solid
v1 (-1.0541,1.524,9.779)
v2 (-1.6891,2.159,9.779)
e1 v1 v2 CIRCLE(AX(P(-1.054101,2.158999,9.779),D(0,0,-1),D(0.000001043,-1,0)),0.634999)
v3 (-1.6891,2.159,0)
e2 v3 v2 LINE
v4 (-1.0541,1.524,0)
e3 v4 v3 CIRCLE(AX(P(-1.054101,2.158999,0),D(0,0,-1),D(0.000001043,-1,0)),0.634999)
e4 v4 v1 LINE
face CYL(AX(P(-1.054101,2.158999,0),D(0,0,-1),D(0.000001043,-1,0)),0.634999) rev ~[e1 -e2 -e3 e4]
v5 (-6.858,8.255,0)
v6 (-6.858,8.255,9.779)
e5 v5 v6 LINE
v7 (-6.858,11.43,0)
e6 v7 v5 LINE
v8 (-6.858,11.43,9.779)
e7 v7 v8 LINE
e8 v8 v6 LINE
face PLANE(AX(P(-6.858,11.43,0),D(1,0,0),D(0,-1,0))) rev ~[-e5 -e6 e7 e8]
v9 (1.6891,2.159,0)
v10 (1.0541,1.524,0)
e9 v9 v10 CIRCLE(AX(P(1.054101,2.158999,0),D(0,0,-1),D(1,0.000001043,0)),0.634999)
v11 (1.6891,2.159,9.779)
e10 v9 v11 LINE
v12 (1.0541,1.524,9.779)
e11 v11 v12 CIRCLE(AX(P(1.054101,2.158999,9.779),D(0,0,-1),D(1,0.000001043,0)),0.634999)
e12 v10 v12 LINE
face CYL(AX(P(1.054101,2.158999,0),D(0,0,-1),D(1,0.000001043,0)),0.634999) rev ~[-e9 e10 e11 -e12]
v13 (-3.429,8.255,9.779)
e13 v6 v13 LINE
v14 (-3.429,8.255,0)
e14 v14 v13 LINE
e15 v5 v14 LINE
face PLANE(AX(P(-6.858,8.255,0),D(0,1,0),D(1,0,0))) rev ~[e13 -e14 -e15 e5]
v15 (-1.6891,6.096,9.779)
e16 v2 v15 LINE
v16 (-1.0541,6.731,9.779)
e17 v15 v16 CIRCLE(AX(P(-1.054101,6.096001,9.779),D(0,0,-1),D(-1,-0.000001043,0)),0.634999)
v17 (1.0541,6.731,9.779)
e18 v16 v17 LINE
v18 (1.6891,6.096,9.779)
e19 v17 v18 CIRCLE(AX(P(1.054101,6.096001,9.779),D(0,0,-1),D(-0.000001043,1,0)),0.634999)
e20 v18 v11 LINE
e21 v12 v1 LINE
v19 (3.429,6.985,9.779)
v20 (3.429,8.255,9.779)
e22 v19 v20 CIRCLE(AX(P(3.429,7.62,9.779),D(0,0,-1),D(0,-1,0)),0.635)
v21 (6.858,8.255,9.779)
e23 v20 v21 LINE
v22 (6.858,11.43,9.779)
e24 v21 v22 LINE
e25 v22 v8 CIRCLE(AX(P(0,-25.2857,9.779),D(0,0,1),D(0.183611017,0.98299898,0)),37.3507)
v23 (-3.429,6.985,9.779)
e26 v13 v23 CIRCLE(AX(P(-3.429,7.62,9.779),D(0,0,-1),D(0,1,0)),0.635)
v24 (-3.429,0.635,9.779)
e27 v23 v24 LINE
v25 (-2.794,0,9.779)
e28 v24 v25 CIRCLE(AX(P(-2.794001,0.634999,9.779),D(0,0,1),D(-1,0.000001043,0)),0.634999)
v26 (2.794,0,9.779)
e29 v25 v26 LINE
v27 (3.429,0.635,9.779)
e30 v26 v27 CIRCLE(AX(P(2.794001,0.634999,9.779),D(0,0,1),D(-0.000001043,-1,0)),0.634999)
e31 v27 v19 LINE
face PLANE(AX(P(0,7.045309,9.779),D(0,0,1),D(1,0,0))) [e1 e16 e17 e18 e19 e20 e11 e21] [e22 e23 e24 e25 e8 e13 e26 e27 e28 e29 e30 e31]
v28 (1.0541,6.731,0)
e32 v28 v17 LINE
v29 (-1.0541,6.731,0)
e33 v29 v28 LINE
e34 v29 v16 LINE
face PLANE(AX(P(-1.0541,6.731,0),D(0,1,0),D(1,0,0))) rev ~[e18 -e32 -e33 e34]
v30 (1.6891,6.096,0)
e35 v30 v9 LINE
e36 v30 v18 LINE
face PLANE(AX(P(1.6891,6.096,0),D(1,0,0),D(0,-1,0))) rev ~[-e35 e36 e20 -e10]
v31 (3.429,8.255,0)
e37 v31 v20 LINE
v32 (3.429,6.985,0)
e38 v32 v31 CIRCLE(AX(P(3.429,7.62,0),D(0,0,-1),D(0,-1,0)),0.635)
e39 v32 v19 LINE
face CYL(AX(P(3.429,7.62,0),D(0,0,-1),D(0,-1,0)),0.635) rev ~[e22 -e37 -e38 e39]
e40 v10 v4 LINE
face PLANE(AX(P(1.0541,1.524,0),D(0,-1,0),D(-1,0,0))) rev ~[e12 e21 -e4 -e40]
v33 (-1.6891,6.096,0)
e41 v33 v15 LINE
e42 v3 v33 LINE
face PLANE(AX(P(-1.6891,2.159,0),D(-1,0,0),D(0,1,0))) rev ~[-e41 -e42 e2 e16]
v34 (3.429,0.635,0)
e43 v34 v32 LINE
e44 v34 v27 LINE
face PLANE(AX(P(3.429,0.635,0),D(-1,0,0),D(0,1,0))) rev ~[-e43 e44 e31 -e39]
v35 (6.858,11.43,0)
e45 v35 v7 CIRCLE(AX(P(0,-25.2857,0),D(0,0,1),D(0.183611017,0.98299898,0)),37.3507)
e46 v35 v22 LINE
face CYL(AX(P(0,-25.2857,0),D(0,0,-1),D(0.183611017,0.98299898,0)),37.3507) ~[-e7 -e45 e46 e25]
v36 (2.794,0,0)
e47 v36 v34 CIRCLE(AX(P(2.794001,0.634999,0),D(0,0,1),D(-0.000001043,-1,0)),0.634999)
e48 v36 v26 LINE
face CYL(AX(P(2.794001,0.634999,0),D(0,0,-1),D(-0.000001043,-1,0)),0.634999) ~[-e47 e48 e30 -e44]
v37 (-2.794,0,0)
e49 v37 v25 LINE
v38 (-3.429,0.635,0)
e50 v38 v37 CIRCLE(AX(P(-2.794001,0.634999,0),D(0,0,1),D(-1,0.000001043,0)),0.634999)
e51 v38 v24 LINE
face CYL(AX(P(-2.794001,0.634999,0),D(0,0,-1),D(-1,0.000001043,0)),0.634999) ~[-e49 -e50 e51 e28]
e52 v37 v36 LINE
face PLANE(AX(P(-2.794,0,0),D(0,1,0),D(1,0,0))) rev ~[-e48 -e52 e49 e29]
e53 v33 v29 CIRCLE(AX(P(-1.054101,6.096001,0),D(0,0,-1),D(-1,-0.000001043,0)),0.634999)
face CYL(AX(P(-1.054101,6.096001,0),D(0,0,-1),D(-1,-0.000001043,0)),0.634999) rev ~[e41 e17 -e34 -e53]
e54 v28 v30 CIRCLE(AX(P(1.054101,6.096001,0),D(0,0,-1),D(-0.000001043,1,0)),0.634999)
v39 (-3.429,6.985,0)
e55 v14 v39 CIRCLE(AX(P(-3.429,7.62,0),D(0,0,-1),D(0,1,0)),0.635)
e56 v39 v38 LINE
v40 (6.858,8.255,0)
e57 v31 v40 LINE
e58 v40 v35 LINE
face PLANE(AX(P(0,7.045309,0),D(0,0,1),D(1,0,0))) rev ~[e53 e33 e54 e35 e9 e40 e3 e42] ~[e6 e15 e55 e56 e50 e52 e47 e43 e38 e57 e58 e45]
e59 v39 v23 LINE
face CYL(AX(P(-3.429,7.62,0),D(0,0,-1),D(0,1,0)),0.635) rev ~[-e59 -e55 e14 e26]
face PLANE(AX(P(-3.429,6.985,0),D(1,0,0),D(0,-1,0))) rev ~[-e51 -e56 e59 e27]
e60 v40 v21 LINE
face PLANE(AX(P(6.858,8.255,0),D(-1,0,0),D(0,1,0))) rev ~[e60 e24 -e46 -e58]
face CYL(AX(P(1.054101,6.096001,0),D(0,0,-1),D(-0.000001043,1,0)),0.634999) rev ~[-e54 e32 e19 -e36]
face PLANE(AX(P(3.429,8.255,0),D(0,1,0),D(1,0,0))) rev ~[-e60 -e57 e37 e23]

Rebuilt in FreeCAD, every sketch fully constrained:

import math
import FreeCAD as App
import Part
import Sketcher

V = App.Vector
Q = App.Units.Quantity

doc = App.newDocument("Part")
params = doc.addObject("Spreadsheet::Sheet", "Params")
for row, (alias, value) in enumerate([
    ("sketch1_radius", "0.025 in"),
    ("sketch1_width", "0.22 in"),
    ("sketch1_height", "0.25 in"),
    ("sketch1_width2", "0.135 in"),
    ("sketch1_width3", "0.083 in"),
    ("pad1_length", "0.385 in"),
], start=1):
    params.set(f"A{row}", alias)
    params.set(f"B{row}", "=" + value)
    params.setAlias(f"B{row}", alias)

body = doc.addObject("PartDesign::Body", "Body")

# Sketch on XY plane
sketch1 = doc.addObject("Sketcher::SketchObject", "Sketch")
body.addObject(sketch1)
sketch1.AttachmentSupport = (doc.XY_Plane, [""])
sketch1.MapMode = "FlatFace"
sketch1.addGeometry([
    Part.ArcOfCircle(Part.Circle(V(-2.8, 0.6, 0), V(0, 0, 1), 0.6), math.radians(180), math.radians(270)),  # 0
    Part.LineSegment(V(-2.8, 0, 0), V(2.8, 0, 0)),  # 1
    Part.ArcOfCircle(Part.Circle(V(2.8, 0.6, 0), V(0, 0, 1), 0.6), math.radians(-90), math.radians(0)),  # 2
    Part.LineSegment(V(3.4, 0.6, 0), V(3.4, 7, 0)),  # 3
    Part.ArcOfCircle(Part.Circle(V(3.4, 7.6, 0), V(0, 0, 1), 0.6), math.radians(90), math.radians(270)),  # 4
    Part.LineSegment(V(3.4, 8.3, 0), V(6.9, 8.3, 0)),  # 5
    Part.LineSegment(V(6.9, 8.3, 0), V(6.9, 11.4, 0)),  # 6
    Part.ArcOfCircle(Part.Circle(V(0, -25.3, 0), V(0, 0, 1), 37.4), math.radians(79), math.radians(101)),  # 7
    Part.LineSegment(V(-6.9, 11.4, 0), V(-6.9, 8.3, 0)),  # 8
    Part.LineSegment(V(-6.9, 8.3, 0), V(-3.4, 8.3, 0)),  # 9
    Part.ArcOfCircle(Part.Circle(V(-3.4, 7.6, 0), V(0, 0, 1), 0.6), math.radians(-90), math.radians(90)),  # 10
    Part.LineSegment(V(-3.4, 7, 0), V(-3.4, 0.6, 0)),  # 11
    Part.LineSegment(V(-1.7, 2.2, 0), V(-1.7, 6.1, 0)),  # 12
    Part.ArcOfCircle(Part.Circle(V(-1.1, 6.1, 0), V(0, 0, 1), 0.6), math.radians(90), math.radians(180)),  # 13
    Part.LineSegment(V(-1.1, 6.7, 0), V(1.1, 6.7, 0)),  # 14
    Part.ArcOfCircle(Part.Circle(V(1.1, 6.1, 0), V(0, 0, 1), 0.6), math.radians(0), math.radians(90)),  # 15
    Part.LineSegment(V(1.7, 6.1, 0), V(1.7, 2.2, 0)),  # 16
    Part.ArcOfCircle(Part.Circle(V(1.1, 2.2, 0), V(0, 0, 1), 0.6), math.radians(-90), math.radians(0)),  # 17
    Part.LineSegment(V(1.1, 1.5, 0), V(-1.1, 1.5, 0)),  # 18
    Part.ArcOfCircle(Part.Circle(V(-1.1, 2.2, 0), V(0, 0, 1), 0.6), math.radians(180), math.radians(270)),  # 19
], False)
sketch1.addConstraint([
    Sketcher.Constraint("Tangent", 0, 2, 1, 1),
    Sketcher.Constraint("Tangent", 1, 2, 2, 1),
    Sketcher.Constraint("Tangent", 2, 2, 3, 1),
    Sketcher.Constraint("Coincident", 3, 2, 4, 2),
    Sketcher.Constraint("Tangent", 4, 1, 5, 1),
    Sketcher.Constraint("Coincident", 5, 2, 6, 1),
    Sketcher.Constraint("Coincident", 6, 2, 7, 1),
    Sketcher.Constraint("Coincident", 7, 2, 8, 1),
    Sketcher.Constraint("Coincident", 8, 2, 9, 1),
    Sketcher.Constraint("Tangent", 9, 2, 10, 2),
    Sketcher.Constraint("Coincident", 10, 1, 11, 1),
    Sketcher.Constraint("Tangent", 11, 2, 0, 1),
    Sketcher.Constraint("Tangent", 12, 2, 13, 2),
    Sketcher.Constraint("Tangent", 13, 1, 14, 1),
    Sketcher.Constraint("Tangent", 14, 2, 15, 2),
    Sketcher.Constraint("Tangent", 15, 1, 16, 1),
    Sketcher.Constraint("Tangent", 16, 2, 17, 2),
    Sketcher.Constraint("Tangent", 17, 1, 18, 1),
    Sketcher.Constraint("Tangent", 18, 2, 19, 2),
    Sketcher.Constraint("Tangent", 19, 1, 12, 1),
    Sketcher.Constraint("Horizontal", 1),
    Sketcher.Constraint("Vertical", 3),
    Sketcher.Constraint("Horizontal", 5),
    Sketcher.Constraint("Vertical", 6),
    Sketcher.Constraint("Vertical", 8),
    Sketcher.Constraint("Horizontal", 9),
    Sketcher.Constraint("Vertical", 11),
    Sketcher.Constraint("Vertical", 12),
    Sketcher.Constraint("Horizontal", 14),
    Sketcher.Constraint("Vertical", 16),
    Sketcher.Constraint("Horizontal", 18),
    Sketcher.Constraint("Equal", 0, 2),
    Sketcher.Constraint("Equal", 2, 4),
    Sketcher.Constraint("Equal", 4, 10),
    Sketcher.Constraint("Equal", 10, 13),
    Sketcher.Constraint("Equal", 13, 15),
    Sketcher.Constraint("Equal", 15, 17),
    Sketcher.Constraint("Equal", 17, 19),
    Sketcher.Constraint("Symmetric", 0, 2, 1, 2, -1, 1),
    Sketcher.Constraint("Symmetric", 4, 3, 10, 3, -2),
    Sketcher.Constraint("Symmetric", 6, 2, 7, 2, -2),
    Sketcher.Constraint("Vertical", 4, 3, 2, 2),
    Sketcher.Constraint("Radius", 0, Q("0.025 in")),
    Sketcher.Constraint("DistanceX", 1, 1, 1, 2, Q("0.22 in")),
    Sketcher.Constraint("DistanceY", 3, 1, 3, 2, Q("0.25 in")),
    Sketcher.Constraint("Radius", 7, Q("1.4705 in")),
    Sketcher.Constraint("DistanceX", 5, 1, 5, 2, Q("0.135 in")),
    Sketcher.Constraint("DistanceX", 14, 1, 14, 2, Q("0.083 in")),
    Sketcher.Constraint("DistanceY", 6, 1, 6, 2, Q("0.125 in")),
    Sketcher.Constraint("DistanceY", 12, 1, 12, 2, Q("0.155 in")),
    Sketcher.Constraint("DistanceY", -1, 1, 13, 3, Q("0.24 in")),
    Sketcher.Constraint("DistanceX", 13, 3, -1, 1, Q("0.0415 in")),
])
sketch1.setExpression("Constraints[42]", "Params.sketch1_radius")
sketch1.setExpression("Constraints[43]", "Params.sketch1_width")
sketch1.setExpression("Constraints[44]", "Params.sketch1_height")
sketch1.setExpression("Constraints[46]", "Params.sketch1_width2")
sketch1.setExpression("Constraints[47]", "Params.sketch1_width3")
pad1 = doc.addObject("PartDesign::Pad", "Pad")
body.addObject(pad1)
pad1.Profile = sketch1
pad1.setExpression("Length", "Params.pad1_length")

doc.recompute()
